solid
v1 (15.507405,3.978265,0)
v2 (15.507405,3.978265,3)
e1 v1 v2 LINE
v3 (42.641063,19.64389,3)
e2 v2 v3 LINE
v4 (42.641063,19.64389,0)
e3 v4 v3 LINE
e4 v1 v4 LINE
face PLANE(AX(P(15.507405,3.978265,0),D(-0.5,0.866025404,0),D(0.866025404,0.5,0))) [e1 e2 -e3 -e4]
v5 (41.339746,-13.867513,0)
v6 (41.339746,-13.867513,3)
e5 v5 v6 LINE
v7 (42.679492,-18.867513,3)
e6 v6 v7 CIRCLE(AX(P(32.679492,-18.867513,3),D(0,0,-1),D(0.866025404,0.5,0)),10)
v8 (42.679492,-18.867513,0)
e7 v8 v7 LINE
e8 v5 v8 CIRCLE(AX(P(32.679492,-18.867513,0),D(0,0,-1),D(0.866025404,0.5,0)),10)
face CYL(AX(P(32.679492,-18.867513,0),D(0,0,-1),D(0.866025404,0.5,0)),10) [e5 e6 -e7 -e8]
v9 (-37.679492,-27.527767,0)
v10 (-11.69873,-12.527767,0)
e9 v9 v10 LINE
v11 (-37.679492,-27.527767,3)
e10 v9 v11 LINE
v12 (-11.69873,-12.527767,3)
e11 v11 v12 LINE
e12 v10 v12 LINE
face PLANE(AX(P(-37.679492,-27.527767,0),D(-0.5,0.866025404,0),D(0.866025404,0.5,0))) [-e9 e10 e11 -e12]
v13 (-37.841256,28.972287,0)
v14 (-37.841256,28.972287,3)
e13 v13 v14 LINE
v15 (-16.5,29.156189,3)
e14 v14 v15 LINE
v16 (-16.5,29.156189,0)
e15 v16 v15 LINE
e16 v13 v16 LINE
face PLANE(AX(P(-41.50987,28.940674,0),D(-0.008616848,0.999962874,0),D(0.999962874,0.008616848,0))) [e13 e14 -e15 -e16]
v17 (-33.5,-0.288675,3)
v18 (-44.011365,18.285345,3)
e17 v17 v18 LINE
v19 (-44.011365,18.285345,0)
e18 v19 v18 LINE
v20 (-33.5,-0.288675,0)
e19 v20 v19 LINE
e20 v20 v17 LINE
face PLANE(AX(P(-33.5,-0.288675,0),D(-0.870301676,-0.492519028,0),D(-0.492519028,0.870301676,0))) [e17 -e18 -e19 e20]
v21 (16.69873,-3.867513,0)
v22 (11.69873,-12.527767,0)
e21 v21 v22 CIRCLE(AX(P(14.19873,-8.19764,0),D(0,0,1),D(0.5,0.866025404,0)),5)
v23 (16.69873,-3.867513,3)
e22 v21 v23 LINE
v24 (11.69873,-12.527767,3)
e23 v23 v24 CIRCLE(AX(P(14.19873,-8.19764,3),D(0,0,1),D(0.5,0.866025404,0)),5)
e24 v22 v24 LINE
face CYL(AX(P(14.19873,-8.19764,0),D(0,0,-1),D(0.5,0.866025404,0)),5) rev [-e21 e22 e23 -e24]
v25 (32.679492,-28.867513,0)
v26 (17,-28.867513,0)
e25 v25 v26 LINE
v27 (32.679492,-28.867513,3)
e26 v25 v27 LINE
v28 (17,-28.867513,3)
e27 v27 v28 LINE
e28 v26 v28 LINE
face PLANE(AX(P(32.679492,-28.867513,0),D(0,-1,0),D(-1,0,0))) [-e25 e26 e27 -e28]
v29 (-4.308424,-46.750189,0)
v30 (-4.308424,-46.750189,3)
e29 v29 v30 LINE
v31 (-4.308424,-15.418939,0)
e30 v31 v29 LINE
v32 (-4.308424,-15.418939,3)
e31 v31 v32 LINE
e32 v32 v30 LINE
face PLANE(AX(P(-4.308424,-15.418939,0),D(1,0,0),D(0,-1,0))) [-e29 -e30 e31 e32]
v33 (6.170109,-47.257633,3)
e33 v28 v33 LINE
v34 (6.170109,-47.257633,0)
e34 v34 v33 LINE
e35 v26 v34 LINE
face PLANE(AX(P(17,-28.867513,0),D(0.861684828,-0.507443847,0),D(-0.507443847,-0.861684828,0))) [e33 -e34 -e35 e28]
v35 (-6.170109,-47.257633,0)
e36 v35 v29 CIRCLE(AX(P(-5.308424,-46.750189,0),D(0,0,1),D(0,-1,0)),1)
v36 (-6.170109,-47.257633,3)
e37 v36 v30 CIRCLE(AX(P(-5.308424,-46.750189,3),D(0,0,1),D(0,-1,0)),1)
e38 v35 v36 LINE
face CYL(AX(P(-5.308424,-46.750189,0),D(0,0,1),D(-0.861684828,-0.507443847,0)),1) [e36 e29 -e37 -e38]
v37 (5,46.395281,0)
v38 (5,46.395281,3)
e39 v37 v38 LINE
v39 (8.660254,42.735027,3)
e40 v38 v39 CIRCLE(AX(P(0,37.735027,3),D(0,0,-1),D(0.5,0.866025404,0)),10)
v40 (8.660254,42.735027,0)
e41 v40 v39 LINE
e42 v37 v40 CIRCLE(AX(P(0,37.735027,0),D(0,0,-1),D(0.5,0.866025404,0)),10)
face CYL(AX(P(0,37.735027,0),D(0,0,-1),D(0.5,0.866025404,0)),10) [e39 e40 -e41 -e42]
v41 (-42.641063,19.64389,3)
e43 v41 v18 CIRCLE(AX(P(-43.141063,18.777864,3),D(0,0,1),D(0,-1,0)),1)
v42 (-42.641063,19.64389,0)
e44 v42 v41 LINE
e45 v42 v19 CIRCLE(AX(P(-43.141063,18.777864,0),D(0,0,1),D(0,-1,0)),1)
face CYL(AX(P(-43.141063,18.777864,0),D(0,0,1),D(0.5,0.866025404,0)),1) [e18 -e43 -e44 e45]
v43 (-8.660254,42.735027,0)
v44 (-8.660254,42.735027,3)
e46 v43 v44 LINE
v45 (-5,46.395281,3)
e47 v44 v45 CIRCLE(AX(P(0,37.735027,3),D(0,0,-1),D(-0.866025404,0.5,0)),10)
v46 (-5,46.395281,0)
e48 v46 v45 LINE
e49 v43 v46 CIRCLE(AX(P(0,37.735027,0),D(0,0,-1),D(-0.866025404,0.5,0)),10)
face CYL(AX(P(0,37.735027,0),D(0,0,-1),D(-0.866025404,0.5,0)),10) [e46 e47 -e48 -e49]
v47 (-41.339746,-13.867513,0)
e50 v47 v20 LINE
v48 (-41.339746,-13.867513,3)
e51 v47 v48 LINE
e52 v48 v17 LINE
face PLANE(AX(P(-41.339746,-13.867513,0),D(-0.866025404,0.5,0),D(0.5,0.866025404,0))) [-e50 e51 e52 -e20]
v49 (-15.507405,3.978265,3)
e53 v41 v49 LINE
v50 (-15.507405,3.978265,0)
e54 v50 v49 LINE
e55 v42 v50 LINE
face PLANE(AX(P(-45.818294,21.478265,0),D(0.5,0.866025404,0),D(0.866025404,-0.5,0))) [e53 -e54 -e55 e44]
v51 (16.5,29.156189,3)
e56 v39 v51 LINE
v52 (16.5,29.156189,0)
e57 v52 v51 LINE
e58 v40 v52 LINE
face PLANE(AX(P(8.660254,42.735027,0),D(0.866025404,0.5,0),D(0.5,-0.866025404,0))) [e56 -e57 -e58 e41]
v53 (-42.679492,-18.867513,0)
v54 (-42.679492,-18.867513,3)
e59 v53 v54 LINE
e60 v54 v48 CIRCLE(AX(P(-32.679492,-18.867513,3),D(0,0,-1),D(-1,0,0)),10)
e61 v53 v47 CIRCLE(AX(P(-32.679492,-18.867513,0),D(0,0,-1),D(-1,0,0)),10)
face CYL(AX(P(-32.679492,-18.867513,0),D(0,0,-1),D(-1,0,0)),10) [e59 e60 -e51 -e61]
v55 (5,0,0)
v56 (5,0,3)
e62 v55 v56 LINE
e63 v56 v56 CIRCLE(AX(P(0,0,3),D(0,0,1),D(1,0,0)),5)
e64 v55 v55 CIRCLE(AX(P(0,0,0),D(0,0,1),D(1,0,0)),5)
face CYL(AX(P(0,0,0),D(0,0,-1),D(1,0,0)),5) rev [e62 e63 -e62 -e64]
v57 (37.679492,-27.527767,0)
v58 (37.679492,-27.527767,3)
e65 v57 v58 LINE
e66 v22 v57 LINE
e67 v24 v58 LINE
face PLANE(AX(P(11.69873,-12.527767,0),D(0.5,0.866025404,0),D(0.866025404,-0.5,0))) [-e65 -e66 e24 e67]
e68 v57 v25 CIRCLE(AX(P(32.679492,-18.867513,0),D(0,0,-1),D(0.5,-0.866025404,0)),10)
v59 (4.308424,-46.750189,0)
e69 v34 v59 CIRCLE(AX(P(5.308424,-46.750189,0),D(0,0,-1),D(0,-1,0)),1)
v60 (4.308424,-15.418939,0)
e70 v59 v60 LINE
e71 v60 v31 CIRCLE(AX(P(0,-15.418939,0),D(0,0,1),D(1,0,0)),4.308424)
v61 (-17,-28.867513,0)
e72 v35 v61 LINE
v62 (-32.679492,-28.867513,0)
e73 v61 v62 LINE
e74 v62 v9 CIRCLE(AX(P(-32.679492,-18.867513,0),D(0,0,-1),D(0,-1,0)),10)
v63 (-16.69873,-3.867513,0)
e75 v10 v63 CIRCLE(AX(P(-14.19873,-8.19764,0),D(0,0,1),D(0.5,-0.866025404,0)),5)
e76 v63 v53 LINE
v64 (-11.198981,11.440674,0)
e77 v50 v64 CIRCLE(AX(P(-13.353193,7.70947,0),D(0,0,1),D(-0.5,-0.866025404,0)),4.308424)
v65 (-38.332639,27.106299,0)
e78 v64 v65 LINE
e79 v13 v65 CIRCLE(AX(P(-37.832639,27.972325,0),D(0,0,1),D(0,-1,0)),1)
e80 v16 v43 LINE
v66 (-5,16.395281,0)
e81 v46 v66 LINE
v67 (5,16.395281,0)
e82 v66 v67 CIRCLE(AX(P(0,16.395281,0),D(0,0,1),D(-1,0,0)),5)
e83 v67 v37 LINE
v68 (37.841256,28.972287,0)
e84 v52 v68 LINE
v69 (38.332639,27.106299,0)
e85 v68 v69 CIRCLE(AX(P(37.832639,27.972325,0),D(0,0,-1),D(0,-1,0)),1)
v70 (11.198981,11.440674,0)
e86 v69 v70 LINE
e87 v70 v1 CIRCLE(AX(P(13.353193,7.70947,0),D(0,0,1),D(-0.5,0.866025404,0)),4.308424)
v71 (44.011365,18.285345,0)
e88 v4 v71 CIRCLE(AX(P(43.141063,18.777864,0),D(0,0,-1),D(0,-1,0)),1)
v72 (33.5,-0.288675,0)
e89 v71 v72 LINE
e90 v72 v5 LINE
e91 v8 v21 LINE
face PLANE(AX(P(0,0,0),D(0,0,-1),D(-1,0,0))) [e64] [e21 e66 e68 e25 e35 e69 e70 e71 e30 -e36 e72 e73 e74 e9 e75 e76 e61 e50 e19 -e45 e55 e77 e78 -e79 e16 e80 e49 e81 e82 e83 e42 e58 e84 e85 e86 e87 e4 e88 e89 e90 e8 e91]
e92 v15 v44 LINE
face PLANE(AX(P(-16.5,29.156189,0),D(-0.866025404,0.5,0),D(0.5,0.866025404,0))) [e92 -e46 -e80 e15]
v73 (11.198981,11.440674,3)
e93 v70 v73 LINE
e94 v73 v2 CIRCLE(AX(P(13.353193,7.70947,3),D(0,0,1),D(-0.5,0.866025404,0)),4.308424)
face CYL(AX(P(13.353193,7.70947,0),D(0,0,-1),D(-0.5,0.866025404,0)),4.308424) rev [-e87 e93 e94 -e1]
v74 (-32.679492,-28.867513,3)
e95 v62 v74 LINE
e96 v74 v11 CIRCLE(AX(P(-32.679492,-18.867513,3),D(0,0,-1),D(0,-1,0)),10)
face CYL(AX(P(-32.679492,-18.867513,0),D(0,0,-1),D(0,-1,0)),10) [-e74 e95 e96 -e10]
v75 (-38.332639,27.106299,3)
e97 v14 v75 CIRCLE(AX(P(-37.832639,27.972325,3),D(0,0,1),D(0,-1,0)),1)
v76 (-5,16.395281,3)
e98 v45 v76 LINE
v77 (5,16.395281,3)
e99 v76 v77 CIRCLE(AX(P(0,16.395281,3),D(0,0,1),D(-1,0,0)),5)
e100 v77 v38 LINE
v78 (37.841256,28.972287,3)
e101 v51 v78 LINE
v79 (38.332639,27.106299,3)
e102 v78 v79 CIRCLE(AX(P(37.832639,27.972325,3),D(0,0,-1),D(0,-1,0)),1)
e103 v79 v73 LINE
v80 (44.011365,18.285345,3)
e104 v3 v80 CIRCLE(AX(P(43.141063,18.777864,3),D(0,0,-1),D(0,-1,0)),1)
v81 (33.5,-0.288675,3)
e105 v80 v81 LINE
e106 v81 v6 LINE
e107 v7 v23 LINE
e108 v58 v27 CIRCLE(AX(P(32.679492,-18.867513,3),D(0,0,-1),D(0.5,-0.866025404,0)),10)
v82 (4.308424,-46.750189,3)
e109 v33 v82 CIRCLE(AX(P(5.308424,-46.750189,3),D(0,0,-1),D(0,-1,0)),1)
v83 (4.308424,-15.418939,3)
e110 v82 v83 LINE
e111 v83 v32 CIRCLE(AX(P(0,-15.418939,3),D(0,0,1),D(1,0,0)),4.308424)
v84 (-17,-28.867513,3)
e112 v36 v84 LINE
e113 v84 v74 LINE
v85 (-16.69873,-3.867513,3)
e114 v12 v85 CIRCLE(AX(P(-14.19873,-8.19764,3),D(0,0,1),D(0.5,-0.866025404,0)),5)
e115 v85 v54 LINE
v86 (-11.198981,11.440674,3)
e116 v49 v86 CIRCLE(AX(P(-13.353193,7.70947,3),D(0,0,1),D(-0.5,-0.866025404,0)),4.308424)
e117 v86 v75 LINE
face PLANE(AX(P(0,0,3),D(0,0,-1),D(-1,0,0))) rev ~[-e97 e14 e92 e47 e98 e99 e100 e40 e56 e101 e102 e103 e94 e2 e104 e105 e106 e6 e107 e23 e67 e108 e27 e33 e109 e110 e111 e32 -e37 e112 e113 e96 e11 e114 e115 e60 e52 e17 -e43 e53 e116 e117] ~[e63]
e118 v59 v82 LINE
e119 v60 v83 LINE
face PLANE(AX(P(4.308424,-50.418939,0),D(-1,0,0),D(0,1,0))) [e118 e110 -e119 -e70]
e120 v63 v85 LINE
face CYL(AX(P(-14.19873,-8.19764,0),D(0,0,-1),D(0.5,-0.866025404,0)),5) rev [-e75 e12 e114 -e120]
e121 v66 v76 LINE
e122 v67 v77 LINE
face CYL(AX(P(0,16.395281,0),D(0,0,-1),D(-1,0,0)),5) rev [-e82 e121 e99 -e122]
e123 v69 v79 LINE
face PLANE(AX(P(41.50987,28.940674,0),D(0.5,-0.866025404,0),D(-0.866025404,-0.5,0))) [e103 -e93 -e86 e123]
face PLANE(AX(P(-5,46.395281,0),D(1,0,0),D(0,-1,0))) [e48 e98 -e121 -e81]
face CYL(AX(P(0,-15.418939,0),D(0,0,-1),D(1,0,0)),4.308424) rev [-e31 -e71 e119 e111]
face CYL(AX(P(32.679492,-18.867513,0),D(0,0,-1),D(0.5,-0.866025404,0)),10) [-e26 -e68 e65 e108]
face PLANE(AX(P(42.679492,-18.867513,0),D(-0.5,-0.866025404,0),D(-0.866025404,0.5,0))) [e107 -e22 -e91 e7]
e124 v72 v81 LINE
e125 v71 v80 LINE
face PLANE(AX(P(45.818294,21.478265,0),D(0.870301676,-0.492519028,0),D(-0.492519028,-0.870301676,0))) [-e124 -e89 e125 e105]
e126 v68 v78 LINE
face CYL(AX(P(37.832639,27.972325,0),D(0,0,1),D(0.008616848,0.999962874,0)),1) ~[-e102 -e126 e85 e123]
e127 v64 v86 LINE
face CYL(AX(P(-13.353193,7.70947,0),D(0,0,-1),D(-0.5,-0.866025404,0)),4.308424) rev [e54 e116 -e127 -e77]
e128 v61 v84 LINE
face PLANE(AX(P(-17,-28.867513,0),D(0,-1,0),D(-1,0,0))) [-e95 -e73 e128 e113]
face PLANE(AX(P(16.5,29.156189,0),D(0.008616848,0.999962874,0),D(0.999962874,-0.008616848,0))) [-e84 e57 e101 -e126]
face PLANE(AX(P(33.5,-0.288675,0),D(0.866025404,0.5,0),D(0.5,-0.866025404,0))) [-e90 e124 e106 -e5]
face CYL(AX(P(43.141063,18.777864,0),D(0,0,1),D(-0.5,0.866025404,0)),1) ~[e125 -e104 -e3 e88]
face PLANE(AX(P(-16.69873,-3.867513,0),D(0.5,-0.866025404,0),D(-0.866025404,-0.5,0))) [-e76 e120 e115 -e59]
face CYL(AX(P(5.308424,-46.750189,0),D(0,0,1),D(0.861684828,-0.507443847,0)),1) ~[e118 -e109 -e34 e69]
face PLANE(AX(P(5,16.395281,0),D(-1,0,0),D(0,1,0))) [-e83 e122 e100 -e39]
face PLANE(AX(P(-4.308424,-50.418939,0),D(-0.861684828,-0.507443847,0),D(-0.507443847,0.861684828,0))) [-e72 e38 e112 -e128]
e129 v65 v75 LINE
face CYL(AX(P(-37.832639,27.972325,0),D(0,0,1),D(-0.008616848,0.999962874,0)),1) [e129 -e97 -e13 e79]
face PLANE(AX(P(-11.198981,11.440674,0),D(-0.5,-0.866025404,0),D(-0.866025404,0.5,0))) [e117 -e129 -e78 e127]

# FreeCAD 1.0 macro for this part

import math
import FreeCAD as App
import Part
import Sketcher


def edges_at(feature, points):
    """Names of the edges that pass closest to the given points."""
    edges = feature.Shape.Edges
    near = lambda p: min(range(len(edges)), key=lambda i: edges[i].distToShape(Part.Vertex(*p))[0])
    return sorted({f"Edge{near(p) + 1}" for p in points})

doc = App.newDocument("Part")
body = doc.addObject("PartDesign::Body", "Body")

# Sketch on XY plane
sketch1 = body.newObject("Sketcher::SketchObject", "Sketch")
sketch1.AttachmentSupport = (doc.getObject("XY_Plane"), [""])
sketch1.MapMode = "FlatFace"
sketch1.addGeometry(Part.LineSegment(App.Vector(-5, 16.4, 0), App.Vector(-5, 46.4, 0)), False)
sketch1.addGeometry(Part.ArcOfCircle(Part.Circle(App.Vector(0, 37.7, 0), App.Vector(0, 0, 1), 10), math.radians(120), math.radians(150)), False)
sketch1.addGeometry(Part.LineSegment(App.Vector(-8.7, 42.7, 0), App.Vector(-16.5, 29.2, 0)), False)
sketch1.addGeometry(Part.LineSegment(App.Vector(-16.5, 29.2, 0), App.Vector(-41.5, 28.9, 0)), False)
sketch1.addGeometry(Part.LineSegment(App.Vector(-41.5, 28.9, 0), App.Vector(-11.2, 11.4, 0)), False)
sketch1.addGeometry(Part.ArcOfCircle(Part.Circle(App.Vector(-13.4, 7.7, 0), App.Vector(0, 0, 1), 4.3), math.radians(-120), math.radians(60)), False)
sketch1.addGeometry(Part.LineSegment(App.Vector(-15.5, 4, 0), App.Vector(-45.8, 21.5, 0)), False)
sketch1.addGeometry(Part.LineSegment(App.Vector(-45.8, 21.5, 0), App.Vector(-33.5, -0.3, 0)), False)
sketch1.addGeometry(Part.LineSegment(App.Vector(-33.5, -0.3, 0), App.Vector(-41.3, -13.9, 0)), False)
sketch1.addGeometry(Part.ArcOfCircle(Part.Circle(App.Vector(-32.7, -18.9, 0), App.Vector(0, 0, 1), 10), math.radians(150), math.radians(180)), False)
sketch1.addGeometry(Part.LineSegment(App.Vector(-42.7, -18.9, 0), App.Vector(-16.7, -3.9, 0)), False)
sketch1.addGeometry(Part.ArcOfCircle(Part.Circle(App.Vector(-14.2, -8.2, 0), App.Vector(0, 0, 1), 5), math.radians(-60), math.radians(120)), False)
sketch1.addGeometry(Part.LineSegment(App.Vector(-11.7, -12.5, 0), App.Vector(-37.7, -27.5, 0)), False)
sketch1.addGeometry(Part.ArcOfCircle(Part.Circle(App.Vector(-32.7, -18.9, 0), App.Vector(0, 0, 1), 10), math.radians(-120), math.radians(-90)), False)
sketch1.addGeometry(Part.LineSegment(App.Vector(-32.7, -28.9, 0), App.Vector(-17, -28.9, 0)), False)
sketch1.addGeometry(Part.LineSegment(App.Vector(-17, -28.9, 0), App.Vector(-4.3, -50.4, 0)), False)
sketch1.addGeometry(Part.LineSegment(App.Vector(-4.3, -50.4, 0), App.Vector(-4.3, -15.4, 0)), False)
sketch1.addGeometry(Part.ArcOfCircle(Part.Circle(App.Vector(0, -15.4, 0), App.Vector(0, 0, 1), 4.3), math.radians(0), math.radians(180)), False)
sketch1.addGeometry(Part.LineSegment(App.Vector(4.3, -15.4, 0), App.Vector(4.3, -50.4, 0)), False)
sketch1.addGeometry(Part.LineSegment(App.Vector(4.3, -50.4, 0), App.Vector(17, -28.9, 0)), False)
sketch1.addGeometry(Part.LineSegment(App.Vector(17, -28.9, 0), App.Vector(32.7, -28.9, 0)), False)
sketch1.addGeometry(Part.ArcOfCircle(Part.Circle(App.Vector(32.7, -18.9, 0), App.Vector(0, 0, 1), 10), math.radians(-90), math.radians(-60)), False)
sketch1.addGeometry(Part.LineSegment(App.Vector(37.7, -27.5, 0), App.Vector(11.7, -12.5, 0)), False)
sketch1.addGeometry(Part.ArcOfCircle(Part.Circle(App.Vector(14.2, -8.2, 0), App.Vector(0, 0, 1), 5), math.radians(60), math.radians(240)), False)
sketch1.addGeometry(Part.LineSegment(App.Vector(16.7, -3.9, 0), App.Vector(42.7, -18.9, 0)), False)
sketch1.addGeometry(Part.ArcOfCircle(Part.Circle(App.Vector(32.7, -18.9, 0), App.Vector(0, 0, 1), 10), math.radians(0), math.radians(30)), False)
sketch1.addGeometry(Part.LineSegment(App.Vector(41.3, -13.9, 0), App.Vector(33.5, -0.3, 0)), False)
sketch1.addGeometry(Part.LineSegment(App.Vector(33.5, -0.3, 0), App.Vector(45.8, 21.5, 0)), False)
sketch1.addGeometry(Part.LineSegment(App.Vector(45.8, 21.5, 0), App.Vector(15.5, 4, 0)), False)
sketch1.addGeometry(Part.ArcOfCircle(Part.Circle(App.Vector(13.4, 7.7, 0), App.Vector(0, 0, 1), 4.3), math.radians(120), math.radians(300)), False)
sketch1.addGeometry(Part.LineSegment(App.Vector(11.2, 11.4, 0), App.Vector(41.5, 28.9, 0)), False)
sketch1.addGeometry(Part.LineSegment(App.Vector(41.5, 28.9, 0), App.Vector(16.5, 29.2, 0)), False)
sketch1.addGeometry(Part.LineSegment(App.Vector(16.5, 29.2, 0), App.Vector(8.7, 42.7, 0)), False)
sketch1.addGeometry(Part.ArcOfCircle(Part.Circle(App.Vector(0, 37.7, 0), App.Vector(0, 0, 1), 10), math.radians(30), math.radians(60)), False)
sketch1.addGeometry(Part.LineSegment(App.Vector(5, 46.4, 0), App.Vector(5, 16.4, 0)), False)
sketch1.addGeometry(Part.ArcOfCircle(Part.Circle(App.Vector(0, 16.4, 0), App.Vector(0, 0, 1), 5), math.radians(180), math.radians(360)), False)
sketch1.addGeometry(Part.Circle(App.Vector(0, 0, 0), App.Vector(0, 0, 1), 5), False)
sketch1.addConstraint(Sketcher.Constraint("Coincident", 0, 2, 1, 1))
sketch1.addConstraint(Sketcher.Constraint("Tangent", 1, 2, 2, 1))
sketch1.addConstraint(Sketcher.Constraint("Coincident", 2, 2, 3, 1))
sketch1.addConstraint(Sketcher.Constraint("Coincident", 3, 2, 4, 1))
sketch1.addConstraint(Sketcher.Constraint("Tangent", 4, 2, 5, 2))
sketch1.addConstraint(Sketcher.Constraint("Tangent", 5, 1, 6, 1))
sketch1.addConstraint(Sketcher.Constraint("Coincident", 6, 2, 7, 1))
sketch1.addConstraint(Sketcher.Constraint("Coincident", 7, 2, 8, 1))
sketch1.addConstraint(Sketcher.Constraint("Tangent", 8, 2, 9, 1))
sketch1.addConstraint(Sketcher.Constraint("Coincident", 9, 2, 10, 1))
sketch1.addConstraint(Sketcher.Constraint("Tangent", 10, 2, 11, 2))
sketch1.addConstraint(Sketcher.Constraint("Tangent", 11, 1, 12, 1))
sketch1.addConstraint(Sketcher.Constraint("Coincident", 12, 2, 13, 1))
sketch1.addConstraint(Sketcher.Constraint("Tangent", 13, 2, 14, 1))
sketch1.addConstraint(Sketcher.Constraint("Coincident", 14, 2, 15, 1))
sketch1.addConstraint(Sketcher.Constraint("Coincident", 15, 2, 16, 1))
sketch1.addConstraint(Sketcher.Constraint("Tangent", 16, 2, 17, 2))
sketch1.addConstraint(Sketcher.Constraint("Tangent", 17, 1, 18, 1))
sketch1.addConstraint(Sketcher.Constraint("Coincident", 18, 2, 19, 1))
sketch1.addConstraint(Sketcher.Constraint("Coincident", 19, 2, 20, 1))
sketch1.addConstraint(Sketcher.Constraint("Tangent", 20, 2, 21, 1))
sketch1.addConstraint(Sketcher.Constraint("Coincident", 21, 2, 22, 1))
sketch1.addConstraint(Sketcher.Constraint("Tangent", 22, 2, 23, 2))
sketch1.addConstraint(Sketcher.Constraint("Tangent", 23, 1, 24, 1))
sketch1.addConstraint(Sketcher.Constraint("Coincident", 24, 2, 25, 1))
sketch1.addConstraint(Sketcher.Constraint("Tangent", 25, 2, 26, 1))
sketch1.addConstraint(Sketcher.Constraint("Coincident", 26, 2, 27, 1))
sketch1.addConstraint(Sketcher.Constraint("Coincident", 27, 2, 28, 1))
sketch1.addConstraint(Sketcher.Constraint("Tangent", 28, 2, 29, 2))
sketch1.addConstraint(Sketcher.Constraint("Tangent", 29, 1, 30, 1))
sketch1.addConstraint(Sketcher.Constraint("Coincident", 30, 2, 31, 1))
sketch1.addConstraint(Sketcher.Constraint("Coincident", 31, 2, 32, 1))
sketch1.addConstraint(Sketcher.Constraint("Tangent", 32, 2, 33, 1))
sketch1.addConstraint(Sketcher.Constraint("Coincident", 33, 2, 34, 1))
sketch1.addConstraint(Sketcher.Constraint("Tangent", 34, 2, 35, 2))
sketch1.addConstraint(Sketcher.Constraint("Tangent", 35, 1, 0, 1))
sketch1.addConstraint(Sketcher.Constraint("Vertical", 0))
sketch1.addConstraint(Sketcher.Constraint("Horizontal", 14))
sketch1.addConstraint(Sketcher.Constraint("Vertical", 16))
sketch1.addConstraint(Sketcher.Constraint("Vertical", 18))
sketch1.addConstraint(Sketcher.Constraint("Horizontal", 20))
sketch1.addConstraint(Sketcher.Constraint("Vertical", 34))
sketch1.addConstraint(Sketcher.Constraint("Coincident", 36, 3, -1, 1))
sketch1.addConstraint(Sketcher.Constraint("Coincident", 13, 3, 9, 3))
sketch1.addConstraint(Sketcher.Constraint("Coincident", 25, 3, 21, 3))
sketch1.addConstraint(Sketcher.Constraint("Coincident", 33, 3, 1, 3))
sketch1.addConstraint(Sketcher.Constraint("Equal", 1, 9))
sketch1.addConstraint(Sketcher.Constraint("Equal", 9, 13))
sketch1.addConstraint(Sketcher.Constraint("Equal", 5, 17))
sketch1.addConstraint(Sketcher.Constraint("Equal", 13, 21))
sketch1.addConstraint(Sketcher.Constraint("Equal", 11, 23))
sketch1.addConstraint(Sketcher.Constraint("Equal", 21, 25))
sketch1.addConstraint(Sketcher.Constraint("Equal", 17, 29))
sketch1.addConstraint(Sketcher.Constraint("Equal", 25, 33))
sketch1.addConstraint(Sketcher.Constraint("Equal", 23, 35))
sketch1.addConstraint(Sketcher.Constraint("Equal", 35, 36))
sketch1.addConstraint(Sketcher.Constraint("Symmetric", 9, 3, 21, 3, -2))
sketch1.addConstraint(Sketcher.Constraint("Symmetric", 11, 3, 23, 3, -2))
sketch1.addConstraint(Sketcher.Constraint("Symmetric", 5, 3, 29, 3, -2))
sketch1.addConstraint(Sketcher.Constraint("Symmetric", 15, 2, 18, 2, -2))
sketch1.addConstraint(Sketcher.Constraint("Symmetric", 7, 2, 26, 2, -2))
sketch1.addConstraint(Sketcher.Constraint("Symmetric", 6, 2, 27, 2, -2))
sketch1.addConstraint(Sketcher.Constraint("Symmetric", 3, 2, 30, 2, -2))
sketch1.addConstraint(Sketcher.Constraint("Symmetric", 2, 2, 31, 2, -2))
sketch1.addConstraint(Sketcher.Constraint("Symmetric", 0, 2, 33, 2, -2))
sketch1.addConstraint(Sketcher.Constraint("Perpendicular", 2, 4))
sketch1.addConstraint(Sketcher.Constraint("Parallel", 4, 6))
sketch1.addConstraint(Sketcher.Constraint("Perpendicular", 6, 8))
sketch1.addConstraint(Sketcher.Constraint("Parallel", 10, 12))
sketch1.addConstraint(Sketcher.Constraint("Perpendicular", 8, 22))
sketch1.addConstraint(Sketcher.Constraint("Parallel", 22, 24))
sketch1.addConstraint(Sketcher.Constraint("Perpendicular", 12, 26))
sketch1.addConstraint(Sketcher.Constraint("Horizontal", 25, 3, 9, 2))
sketch1.addConstraint(Sketcher.Constraint("Equal", 14, 20))
sketch1.addConstraint(Sketcher.Constraint("Equal", 4, 6))
sketch1.addConstraint(Sketcher.Constraint("Equal", 3, 7))
sketch1.addConstraint(Sketcher.Constraint("Equal", 2, 8))
sketch1.addConstraint(Sketcher.Constraint("Equal", 10, 12))
sketch1.addConstraint(Sketcher.Constraint("Equal", 7, 15))
sketch1.addConstraint(Sketcher.Constraint("Diameter", 36, 10.0))
sketch1.addConstraint(Sketcher.Constraint("Radius", 1, 10.0))
sketch1.addConstraint(Sketcher.Constraint("DistanceY", 0, 1, 0, 2, 30.0))
sketch1.addConstraint(Sketcher.Constraint("DistanceY", 16, 1, 16, 2, 35.0))
sketch1.addConstraint(Sketcher.Constraint("Distance", 4, 35.0))
sketch1.addConstraint(Sketcher.Constraint("Distance", 10, 30.0))
sketch1.addConstraint(Sketcher.Constraint("DistanceX", 14, 2, -1, 1, 17.0))
sketch1.addConstraint(Sketcher.Constraint("DistanceX", 2, 2, -1, 1, 16.5))
sketch1.addConstraint(Sketcher.Constraint("DistanceX", 7, 2, -1, 1, 33.5))
sketch1.addConstraint(Sketcher.Constraint("Radius", 5, 4.308424))
sketch1.addConstraint(Sketcher.Constraint("Distance", 3, 25.010799))
sketch1.addConstraint(Sketcher.Constraint("DistanceY", -1, 1, 5, 3, 7.70947))
sketch1.addConstraint(Sketcher.Constraint("DistanceY", -1, 1, 35, 3, 16.395281))
pad1 = body.newObject("PartDesign::Pad", "Pad")
pad1.Profile = sketch1
pad1.Length = 3
doc.recompute()

fillet = body.newObject("PartDesign::Fillet", "Fillet")
fillet.Base = (pad1, edges_at(pad1, [
    (41.51, 28.941, 1.5),
    (45.818, 21.478, 1.5),
    (4.308, -50.419, 1.5),
    (-4.308, -50.419, 1.5),
    (-45.818, 21.478, 1.5),
    (-41.51, 28.941, 1.5),
]))
fillet.Radius = 1

doc.recompute()
